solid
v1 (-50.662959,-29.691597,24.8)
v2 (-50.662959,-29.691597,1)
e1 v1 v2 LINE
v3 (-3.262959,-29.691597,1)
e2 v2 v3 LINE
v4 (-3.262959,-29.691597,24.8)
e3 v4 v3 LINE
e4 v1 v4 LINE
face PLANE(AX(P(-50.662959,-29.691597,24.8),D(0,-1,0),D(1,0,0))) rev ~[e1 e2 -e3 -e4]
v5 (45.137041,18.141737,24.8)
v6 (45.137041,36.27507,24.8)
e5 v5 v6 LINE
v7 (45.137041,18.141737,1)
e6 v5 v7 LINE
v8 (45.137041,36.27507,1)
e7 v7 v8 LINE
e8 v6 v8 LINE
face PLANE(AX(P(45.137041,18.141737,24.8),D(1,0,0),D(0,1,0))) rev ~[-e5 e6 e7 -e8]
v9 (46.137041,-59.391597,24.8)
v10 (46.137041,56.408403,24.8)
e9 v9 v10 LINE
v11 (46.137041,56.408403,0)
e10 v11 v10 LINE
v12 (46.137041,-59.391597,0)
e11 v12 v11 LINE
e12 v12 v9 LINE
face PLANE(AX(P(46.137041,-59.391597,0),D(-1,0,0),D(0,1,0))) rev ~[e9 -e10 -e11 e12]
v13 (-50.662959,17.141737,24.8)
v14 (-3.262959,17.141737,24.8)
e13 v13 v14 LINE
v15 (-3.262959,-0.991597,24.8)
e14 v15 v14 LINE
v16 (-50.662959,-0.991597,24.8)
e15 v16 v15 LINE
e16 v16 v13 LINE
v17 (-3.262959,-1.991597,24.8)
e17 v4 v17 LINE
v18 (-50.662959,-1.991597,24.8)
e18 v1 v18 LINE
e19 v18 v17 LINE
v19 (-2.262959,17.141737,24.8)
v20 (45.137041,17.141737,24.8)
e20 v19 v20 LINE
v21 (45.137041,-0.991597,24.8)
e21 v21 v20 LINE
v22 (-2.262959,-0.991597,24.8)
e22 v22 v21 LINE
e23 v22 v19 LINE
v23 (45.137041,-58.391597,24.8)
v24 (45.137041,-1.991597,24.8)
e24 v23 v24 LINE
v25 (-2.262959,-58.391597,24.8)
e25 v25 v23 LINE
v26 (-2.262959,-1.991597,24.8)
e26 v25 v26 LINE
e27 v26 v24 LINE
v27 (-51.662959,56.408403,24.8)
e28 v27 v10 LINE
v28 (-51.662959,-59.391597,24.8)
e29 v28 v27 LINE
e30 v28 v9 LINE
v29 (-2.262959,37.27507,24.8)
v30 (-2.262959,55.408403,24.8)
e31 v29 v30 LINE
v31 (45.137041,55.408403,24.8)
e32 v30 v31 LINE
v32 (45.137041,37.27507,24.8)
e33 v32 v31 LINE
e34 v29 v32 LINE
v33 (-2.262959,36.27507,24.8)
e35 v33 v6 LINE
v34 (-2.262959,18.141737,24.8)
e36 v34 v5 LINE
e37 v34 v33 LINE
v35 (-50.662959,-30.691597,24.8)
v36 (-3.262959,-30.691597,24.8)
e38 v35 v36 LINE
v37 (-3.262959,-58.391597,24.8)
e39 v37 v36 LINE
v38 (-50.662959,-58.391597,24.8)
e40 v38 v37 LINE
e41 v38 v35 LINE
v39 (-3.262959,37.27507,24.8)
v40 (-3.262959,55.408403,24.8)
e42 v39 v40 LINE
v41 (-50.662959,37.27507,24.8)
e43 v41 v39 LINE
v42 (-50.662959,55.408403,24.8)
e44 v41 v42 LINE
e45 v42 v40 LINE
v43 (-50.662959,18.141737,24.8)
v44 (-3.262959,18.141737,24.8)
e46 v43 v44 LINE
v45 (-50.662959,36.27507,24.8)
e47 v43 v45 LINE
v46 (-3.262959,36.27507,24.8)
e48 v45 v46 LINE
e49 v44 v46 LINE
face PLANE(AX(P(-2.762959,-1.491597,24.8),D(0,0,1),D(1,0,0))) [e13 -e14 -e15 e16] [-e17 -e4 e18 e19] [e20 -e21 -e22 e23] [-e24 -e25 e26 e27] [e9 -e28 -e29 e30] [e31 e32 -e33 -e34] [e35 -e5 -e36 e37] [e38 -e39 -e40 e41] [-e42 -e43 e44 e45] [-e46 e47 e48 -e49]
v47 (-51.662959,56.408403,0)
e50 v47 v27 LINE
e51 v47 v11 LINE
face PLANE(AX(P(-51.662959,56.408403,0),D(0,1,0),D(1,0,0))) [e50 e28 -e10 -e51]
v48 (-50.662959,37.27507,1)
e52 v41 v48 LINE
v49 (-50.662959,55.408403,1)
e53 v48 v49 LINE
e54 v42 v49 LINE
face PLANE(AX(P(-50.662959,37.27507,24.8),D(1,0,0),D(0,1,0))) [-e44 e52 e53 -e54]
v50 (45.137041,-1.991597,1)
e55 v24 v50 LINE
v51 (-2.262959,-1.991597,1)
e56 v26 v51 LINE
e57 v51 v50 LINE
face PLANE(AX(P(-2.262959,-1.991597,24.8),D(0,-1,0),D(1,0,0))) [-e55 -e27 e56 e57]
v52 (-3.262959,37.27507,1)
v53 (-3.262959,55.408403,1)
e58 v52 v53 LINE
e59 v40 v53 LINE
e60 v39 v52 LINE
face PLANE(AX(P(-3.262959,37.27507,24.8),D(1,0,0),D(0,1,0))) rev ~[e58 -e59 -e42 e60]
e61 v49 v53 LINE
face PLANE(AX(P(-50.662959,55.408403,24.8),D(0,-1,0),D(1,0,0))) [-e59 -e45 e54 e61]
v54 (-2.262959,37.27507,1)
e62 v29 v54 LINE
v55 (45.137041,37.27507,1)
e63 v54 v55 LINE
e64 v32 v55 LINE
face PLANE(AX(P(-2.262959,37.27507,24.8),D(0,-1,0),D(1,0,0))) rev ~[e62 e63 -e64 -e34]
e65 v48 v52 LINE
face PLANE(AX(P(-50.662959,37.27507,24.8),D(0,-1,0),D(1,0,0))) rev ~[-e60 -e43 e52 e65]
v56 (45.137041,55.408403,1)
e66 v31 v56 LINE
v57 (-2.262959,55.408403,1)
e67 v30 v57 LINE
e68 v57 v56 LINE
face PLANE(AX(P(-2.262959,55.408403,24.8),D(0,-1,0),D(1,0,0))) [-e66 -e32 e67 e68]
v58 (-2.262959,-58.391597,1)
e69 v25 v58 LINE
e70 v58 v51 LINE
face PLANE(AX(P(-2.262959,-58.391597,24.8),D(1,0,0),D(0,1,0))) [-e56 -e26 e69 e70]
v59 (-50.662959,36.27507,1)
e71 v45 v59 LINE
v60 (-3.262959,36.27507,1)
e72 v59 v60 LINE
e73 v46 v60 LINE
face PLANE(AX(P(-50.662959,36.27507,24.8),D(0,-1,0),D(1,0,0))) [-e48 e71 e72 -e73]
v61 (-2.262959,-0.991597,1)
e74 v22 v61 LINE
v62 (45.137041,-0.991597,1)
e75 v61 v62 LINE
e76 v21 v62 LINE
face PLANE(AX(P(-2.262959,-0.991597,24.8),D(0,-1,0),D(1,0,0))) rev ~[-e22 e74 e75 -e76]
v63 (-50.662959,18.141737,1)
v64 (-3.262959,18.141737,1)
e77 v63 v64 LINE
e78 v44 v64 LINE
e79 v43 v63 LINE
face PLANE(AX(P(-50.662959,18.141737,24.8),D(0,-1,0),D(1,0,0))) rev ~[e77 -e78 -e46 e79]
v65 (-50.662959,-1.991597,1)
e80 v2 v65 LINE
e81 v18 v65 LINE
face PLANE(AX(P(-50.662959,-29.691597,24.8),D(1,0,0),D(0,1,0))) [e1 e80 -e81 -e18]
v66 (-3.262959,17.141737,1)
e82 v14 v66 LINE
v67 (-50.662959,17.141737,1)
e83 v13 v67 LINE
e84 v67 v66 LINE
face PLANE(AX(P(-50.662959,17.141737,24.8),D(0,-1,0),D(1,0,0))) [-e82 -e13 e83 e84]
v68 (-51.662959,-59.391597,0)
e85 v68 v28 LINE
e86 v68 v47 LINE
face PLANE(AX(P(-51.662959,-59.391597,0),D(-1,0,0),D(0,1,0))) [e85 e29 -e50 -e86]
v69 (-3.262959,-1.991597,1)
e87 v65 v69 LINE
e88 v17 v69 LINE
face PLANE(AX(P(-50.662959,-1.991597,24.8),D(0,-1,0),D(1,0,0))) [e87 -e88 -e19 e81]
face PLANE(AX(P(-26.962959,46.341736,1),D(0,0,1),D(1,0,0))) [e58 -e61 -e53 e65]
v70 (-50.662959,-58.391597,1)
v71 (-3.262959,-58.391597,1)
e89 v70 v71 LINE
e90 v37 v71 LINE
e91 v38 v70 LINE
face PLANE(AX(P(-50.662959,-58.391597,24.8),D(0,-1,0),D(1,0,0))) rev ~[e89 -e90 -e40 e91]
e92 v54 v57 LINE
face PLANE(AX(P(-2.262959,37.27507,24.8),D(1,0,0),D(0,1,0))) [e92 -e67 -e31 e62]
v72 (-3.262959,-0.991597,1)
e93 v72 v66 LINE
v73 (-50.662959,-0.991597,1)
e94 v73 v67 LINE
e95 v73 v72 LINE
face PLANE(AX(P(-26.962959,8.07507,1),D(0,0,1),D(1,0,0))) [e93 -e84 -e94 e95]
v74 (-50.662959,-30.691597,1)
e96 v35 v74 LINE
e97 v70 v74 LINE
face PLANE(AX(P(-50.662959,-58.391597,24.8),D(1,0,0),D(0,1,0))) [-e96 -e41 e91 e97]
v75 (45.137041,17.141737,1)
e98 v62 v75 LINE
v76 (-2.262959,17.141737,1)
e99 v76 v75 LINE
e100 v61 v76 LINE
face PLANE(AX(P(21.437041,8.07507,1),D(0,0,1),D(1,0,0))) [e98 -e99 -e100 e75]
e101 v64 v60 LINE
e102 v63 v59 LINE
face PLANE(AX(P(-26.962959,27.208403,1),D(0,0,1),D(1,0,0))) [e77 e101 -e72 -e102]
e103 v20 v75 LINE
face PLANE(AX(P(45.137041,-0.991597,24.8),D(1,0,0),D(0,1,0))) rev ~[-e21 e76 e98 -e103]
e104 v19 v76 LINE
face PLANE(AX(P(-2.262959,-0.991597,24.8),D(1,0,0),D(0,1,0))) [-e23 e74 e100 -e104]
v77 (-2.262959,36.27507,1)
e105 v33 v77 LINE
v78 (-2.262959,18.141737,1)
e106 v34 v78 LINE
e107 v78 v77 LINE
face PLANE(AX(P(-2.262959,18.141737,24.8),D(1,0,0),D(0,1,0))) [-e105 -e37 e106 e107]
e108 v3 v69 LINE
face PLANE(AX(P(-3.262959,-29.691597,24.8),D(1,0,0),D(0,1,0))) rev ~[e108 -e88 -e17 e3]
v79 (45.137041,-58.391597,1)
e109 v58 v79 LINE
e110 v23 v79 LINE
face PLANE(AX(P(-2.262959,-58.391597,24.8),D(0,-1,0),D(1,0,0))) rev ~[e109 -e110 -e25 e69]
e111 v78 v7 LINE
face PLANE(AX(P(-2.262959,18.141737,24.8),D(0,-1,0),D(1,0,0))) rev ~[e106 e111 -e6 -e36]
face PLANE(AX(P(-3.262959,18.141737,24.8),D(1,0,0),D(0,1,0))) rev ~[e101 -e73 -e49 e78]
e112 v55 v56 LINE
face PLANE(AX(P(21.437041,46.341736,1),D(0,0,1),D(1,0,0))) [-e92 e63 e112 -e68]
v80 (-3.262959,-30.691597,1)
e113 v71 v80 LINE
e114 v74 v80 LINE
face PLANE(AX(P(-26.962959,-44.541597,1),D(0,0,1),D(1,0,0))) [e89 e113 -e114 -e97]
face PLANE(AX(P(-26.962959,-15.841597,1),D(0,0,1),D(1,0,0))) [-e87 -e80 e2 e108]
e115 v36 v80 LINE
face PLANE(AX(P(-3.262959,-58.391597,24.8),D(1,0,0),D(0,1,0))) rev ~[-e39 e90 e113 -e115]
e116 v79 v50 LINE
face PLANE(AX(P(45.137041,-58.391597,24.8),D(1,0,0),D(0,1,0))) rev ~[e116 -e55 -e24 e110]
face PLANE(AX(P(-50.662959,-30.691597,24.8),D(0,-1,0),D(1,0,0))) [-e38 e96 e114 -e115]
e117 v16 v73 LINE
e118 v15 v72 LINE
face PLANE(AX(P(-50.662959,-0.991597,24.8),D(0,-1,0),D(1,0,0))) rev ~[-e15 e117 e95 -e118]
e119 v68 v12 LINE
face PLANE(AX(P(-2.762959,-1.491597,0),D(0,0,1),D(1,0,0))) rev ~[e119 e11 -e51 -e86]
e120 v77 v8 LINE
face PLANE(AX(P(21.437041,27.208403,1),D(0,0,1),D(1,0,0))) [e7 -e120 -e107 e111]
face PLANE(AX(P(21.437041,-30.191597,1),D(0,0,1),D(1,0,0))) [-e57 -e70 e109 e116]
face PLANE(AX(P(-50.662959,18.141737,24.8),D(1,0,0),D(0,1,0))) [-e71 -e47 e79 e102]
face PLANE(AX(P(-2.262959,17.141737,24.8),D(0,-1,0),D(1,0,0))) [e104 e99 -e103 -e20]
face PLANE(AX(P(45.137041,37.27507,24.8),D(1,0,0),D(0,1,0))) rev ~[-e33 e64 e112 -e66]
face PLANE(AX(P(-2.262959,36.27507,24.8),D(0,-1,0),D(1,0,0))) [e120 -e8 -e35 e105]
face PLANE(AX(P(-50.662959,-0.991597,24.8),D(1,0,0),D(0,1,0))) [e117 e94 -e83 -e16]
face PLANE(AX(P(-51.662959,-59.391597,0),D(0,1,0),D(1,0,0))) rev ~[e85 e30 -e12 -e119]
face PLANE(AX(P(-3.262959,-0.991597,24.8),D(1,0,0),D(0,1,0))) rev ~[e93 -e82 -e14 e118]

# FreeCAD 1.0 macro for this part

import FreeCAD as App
import Part
import Sketcher

V = App.Vector


def add_polygon(sketch, points):
    """Adds a closed chain of lines whose ends are joined by coincident constraints."""
    first, n = sketch.GeometryCount, len(points)
    for a, b in zip(points, points[1:] + points[:1]):
        sketch.addGeometry(Part.LineSegment(App.Vector(*a, 0), App.Vector(*b, 0)), False)
    for i in range(n):
        sketch.addConstraint(Sketcher.Constraint("Coincident", first + i, 2, first + (i + 1) % n, 1))

doc = App.newDocument("Part")
body = doc.addObject("PartDesign::Body", "Body")

# Sketch on XY plane
sketch1 = doc.addObject("Sketcher::SketchObject", "Sketch")
body.addObject(sketch1)
sketch1.AttachmentSupport = (doc.XY_Plane, [""])
sketch1.MapMode = "FlatFace"
add_polygon(sketch1, [(-52, 56), (-52, -59), (46, -59), (46, 56)])  # lines 0-3
sketch1.addConstraint(Sketcher.Constraint("Vertical", 0))
sketch1.addConstraint(Sketcher.Constraint("Horizontal", 1))
sketch1.addConstraint(Sketcher.Constraint("Vertical", 2))
sketch1.addConstraint(Sketcher.Constraint("Horizontal", 3))
sketch1.addConstraint(Sketcher.Constraint("DistanceX", 1, 1, 1, 2, 97.8))
sketch1.addConstraint(Sketcher.Constraint("DistanceY", 0, 2, 0, 1, 115.8))
sketch1.addConstraint(Sketcher.Constraint("DistanceX", 0, 2, -1, 1, 51.662959))
sketch1.addConstraint(Sketcher.Constraint("DistanceY", 0, 2, -1, 1, 59.391597))
pad1 = doc.addObject("PartDesign::Pad", "Pad")
body.addObject(pad1)
pad1.Profile = sketch1
pad1.Length = 24.8

# Sketch on XY plane
sketch2 = doc.addObject("Sketcher::SketchObject", "Sketch001")
body.addObject(sketch2)
sketch2.AttachmentSupport = (doc.XY_Plane, [""])
sketch2.MapMode = "FlatFace"
sketch2.AttachmentOffset = App.Placement(V(0, 0, 24.8), App.Rotation())
add_polygon(sketch2, [(-51, -31), (-51, -58), (-3, -58), (-3, -31)])  # lines 0-3
add_polygon(sketch2, [(-51, -2), (-51, -30), (-3, -30), (-3, -2)])  # lines 4-7
add_polygon(sketch2, [(-2, -2), (-2, -58), (45, -58), (45, -2)])  # lines 8-11
add_polygon(sketch2, [(-2, 17), (-2, -1), (45, -1), (45, 17)])  # lines 12-15
add_polygon(sketch2, [(-51, 17), (-51, -1), (-3, -1), (-3, 17)])  # lines 16-19
add_polygon(sketch2, [(-51, 36), (-51, 18), (-3, 18), (-3, 36)])  # lines 20-23
add_polygon(sketch2, [(-2, 36), (-2, 18), (45, 18), (45, 36)])  # lines 24-27
add_polygon(sketch2, [(-2, 55), (-2, 37), (45, 37), (45, 55)])  # lines 28-31
add_polygon(sketch2, [(-51, 55), (-51, 37), (-3, 37), (-3, 55)])  # lines 32-35
sketch2.addConstraint(Sketcher.Constraint("Vertical", 0))
sketch2.addConstraint(Sketcher.Constraint("Horizontal", 1))
sketch2.addConstraint(Sketcher.Constraint("Vertical", 2))
sketch2.addConstraint(Sketcher.Constraint("Horizontal", 3))
sketch2.addConstraint(Sketcher.Constraint("Vertical", 4))
sketch2.addConstraint(Sketcher.Constraint("Horizontal", 5))
sketch2.addConstraint(Sketcher.Constraint("Vertical", 6))
sketch2.addConstraint(Sketcher.Constraint("Horizontal", 7))
sketch2.addConstraint(Sketcher.Constraint("Vertical", 8))
sketch2.addConstraint(Sketcher.Constraint("Horizontal", 9))
sketch2.addConstraint(Sketcher.Constraint("Vertical", 10))
sketch2.addConstraint(Sketcher.Constraint("Horizontal", 11))
sketch2.addConstraint(Sketcher.Constraint("Vertical", 12))
sketch2.addConstraint(Sketcher.Constraint("Horizontal", 13))
sketch2.addConstraint(Sketcher.Constraint("Vertical", 14))
sketch2.addConstraint(Sketcher.Constraint("Horizontal", 15))
sketch2.addConstraint(Sketcher.Constraint("Vertical", 16))
sketch2.addConstraint(Sketcher.Constraint("Horizontal", 17))
sketch2.addConstraint(Sketcher.Constraint("Vertical", 18))
sketch2.addConstraint(Sketcher.Constraint("Horizontal", 19))
sketch2.addConstraint(Sketcher.Constraint("Vertical", 20))
sketch2.addConstraint(Sketcher.Constraint("Horizontal", 21))
sketch2.addConstraint(Sketcher.Constraint("Vertical", 22))
sketch2.addConstraint(Sketcher.Constraint("Horizontal", 23))
sketch2.addConstraint(Sketcher.Constraint("Vertical", 24))
sketch2.addConstraint(Sketcher.Constraint("Horizontal", 25))
sketch2.addConstraint(Sketcher.Constraint("Vertical", 26))
sketch2.addConstraint(Sketcher.Constraint("Horizontal", 27))
sketch2.addConstraint(Sketcher.Constraint("Vertical", 28))
sketch2.addConstraint(Sketcher.Constraint("Horizontal", 29))
sketch2.addConstraint(Sketcher.Constraint("Vertical", 30))
sketch2.addConstraint(Sketcher.Constraint("Horizontal", 31))
sketch2.addConstraint(Sketcher.Constraint("Vertical", 32))
sketch2.addConstraint(Sketcher.Constraint("Horizontal", 33))
sketch2.addConstraint(Sketcher.Constraint("Vertical", 34))
sketch2.addConstraint(Sketcher.Constraint("Horizontal", 35))
sketch2.addConstraint(Sketcher.Constraint("Horizontal", 1, 2, 8, 2))
sketch2.addConstraint(Sketcher.Constraint("Horizontal", 7, 2, 10, 2))
sketch2.addConstraint(Sketcher.Constraint("Horizontal", 13, 2, 16, 2))
sketch2.addConstraint(Sketcher.Constraint("Horizontal", 15, 2, 18, 2))
sketch2.addConstraint(Sketcher.Constraint("Horizontal", 21, 2, 24, 2))
sketch2.addConstraint(Sketcher.Constraint("Horizontal", 23, 2, 26, 2))
sketch2.addConstraint(Sketcher.Constraint("Horizontal", 29, 2, 32, 2))
sketch2.addConstraint(Sketcher.Constraint("Horizontal", 31, 2, 34, 2))
sketch2.addConstraint(Sketcher.Constraint("Vertical", 3, 2, 4, 2))
sketch2.addConstraint(Sketcher.Constraint("Vertical", 2, 2, 5, 2))
sketch2.addConstraint(Sketcher.Constraint("Vertical", 11, 2, 12, 2))
sketch2.addConstraint(Sketcher.Constraint("Vertical", 10, 2, 13, 2))
sketch2.addConstraint(Sketcher.Constraint("Vertical", 7, 2, 16, 2))
sketch2.addConstraint(Sketcher.Constraint("Vertical", 6, 2, 17, 2))
sketch2.addConstraint(Sketcher.Constraint("Vertical", 19, 2, 20, 2))
sketch2.addConstraint(Sketcher.Constraint("Vertical", 18, 2, 21, 2))
sketch2.addConstraint(Sketcher.Constraint("Vertical", 15, 2, 24, 2))
sketch2.addConstraint(Sketcher.Constraint("Vertical", 14, 2, 25, 2))
sketch2.addConstraint(Sketcher.Constraint("Vertical", 27, 2, 28, 2))
sketch2.addConstraint(Sketcher.Constraint("Vertical", 26, 2, 29, 2))
sketch2.addConstraint(Sketcher.Constraint("Vertical", 23, 2, 32, 2))
sketch2.addConstraint(Sketcher.Constraint("Vertical", 22, 2, 33, 2))
sketch2.addConstraint(Sketcher.Constraint("Equal", 7, 9))
sketch2.addConstraint(Sketcher.Constraint("Equal", 2, 4))
sketch2.addConstraint(Sketcher.Constraint("Equal", 18, 20))
sketch2.addConstraint(Sketcher.Constraint("Equal", 26, 28))
sketch2.addConstraint(Sketcher.Constraint("DistanceX", 1, 1, 1, 2, 47.4))
sketch2.addConstraint(Sketcher.Constraint("DistanceY", 0, 2, 0, 1, 27.7))
sketch2.addConstraint(Sketcher.Constraint("DistanceY", 8, 2, 8, 1, 56.4))
sketch2.addConstraint(Sketcher.Constraint("DistanceX", 1, 2, 8, 2, 1.0))
sketch2.addConstraint(Sketcher.Constraint("DistanceY", 11, 2, 12, 2, 1.0))
sketch2.addConstraint(Sketcher.Constraint("DistanceY", 19, 2, 20, 2, 1.0))
sketch2.addConstraint(Sketcher.Constraint("DistanceY", 27, 2, 28, 2, 1.0))
sketch2.addConstraint(Sketcher.Constraint("DistanceY", 12, 2, 12, 1, 18.133334))
sketch2.addConstraint(Sketcher.Constraint("DistanceX", 0, 2, -1, 1, 50.662959))
sketch2.addConstraint(Sketcher.Constraint("DistanceY", -1, 1, 22, 2, 36.27507))
pocket1 = doc.addObject("PartDesign::Pocket", "Pocket")
body.addObject(pocket1)
pocket1.Profile = sketch2
pocket1.Length = 23.8

doc.recompute()
